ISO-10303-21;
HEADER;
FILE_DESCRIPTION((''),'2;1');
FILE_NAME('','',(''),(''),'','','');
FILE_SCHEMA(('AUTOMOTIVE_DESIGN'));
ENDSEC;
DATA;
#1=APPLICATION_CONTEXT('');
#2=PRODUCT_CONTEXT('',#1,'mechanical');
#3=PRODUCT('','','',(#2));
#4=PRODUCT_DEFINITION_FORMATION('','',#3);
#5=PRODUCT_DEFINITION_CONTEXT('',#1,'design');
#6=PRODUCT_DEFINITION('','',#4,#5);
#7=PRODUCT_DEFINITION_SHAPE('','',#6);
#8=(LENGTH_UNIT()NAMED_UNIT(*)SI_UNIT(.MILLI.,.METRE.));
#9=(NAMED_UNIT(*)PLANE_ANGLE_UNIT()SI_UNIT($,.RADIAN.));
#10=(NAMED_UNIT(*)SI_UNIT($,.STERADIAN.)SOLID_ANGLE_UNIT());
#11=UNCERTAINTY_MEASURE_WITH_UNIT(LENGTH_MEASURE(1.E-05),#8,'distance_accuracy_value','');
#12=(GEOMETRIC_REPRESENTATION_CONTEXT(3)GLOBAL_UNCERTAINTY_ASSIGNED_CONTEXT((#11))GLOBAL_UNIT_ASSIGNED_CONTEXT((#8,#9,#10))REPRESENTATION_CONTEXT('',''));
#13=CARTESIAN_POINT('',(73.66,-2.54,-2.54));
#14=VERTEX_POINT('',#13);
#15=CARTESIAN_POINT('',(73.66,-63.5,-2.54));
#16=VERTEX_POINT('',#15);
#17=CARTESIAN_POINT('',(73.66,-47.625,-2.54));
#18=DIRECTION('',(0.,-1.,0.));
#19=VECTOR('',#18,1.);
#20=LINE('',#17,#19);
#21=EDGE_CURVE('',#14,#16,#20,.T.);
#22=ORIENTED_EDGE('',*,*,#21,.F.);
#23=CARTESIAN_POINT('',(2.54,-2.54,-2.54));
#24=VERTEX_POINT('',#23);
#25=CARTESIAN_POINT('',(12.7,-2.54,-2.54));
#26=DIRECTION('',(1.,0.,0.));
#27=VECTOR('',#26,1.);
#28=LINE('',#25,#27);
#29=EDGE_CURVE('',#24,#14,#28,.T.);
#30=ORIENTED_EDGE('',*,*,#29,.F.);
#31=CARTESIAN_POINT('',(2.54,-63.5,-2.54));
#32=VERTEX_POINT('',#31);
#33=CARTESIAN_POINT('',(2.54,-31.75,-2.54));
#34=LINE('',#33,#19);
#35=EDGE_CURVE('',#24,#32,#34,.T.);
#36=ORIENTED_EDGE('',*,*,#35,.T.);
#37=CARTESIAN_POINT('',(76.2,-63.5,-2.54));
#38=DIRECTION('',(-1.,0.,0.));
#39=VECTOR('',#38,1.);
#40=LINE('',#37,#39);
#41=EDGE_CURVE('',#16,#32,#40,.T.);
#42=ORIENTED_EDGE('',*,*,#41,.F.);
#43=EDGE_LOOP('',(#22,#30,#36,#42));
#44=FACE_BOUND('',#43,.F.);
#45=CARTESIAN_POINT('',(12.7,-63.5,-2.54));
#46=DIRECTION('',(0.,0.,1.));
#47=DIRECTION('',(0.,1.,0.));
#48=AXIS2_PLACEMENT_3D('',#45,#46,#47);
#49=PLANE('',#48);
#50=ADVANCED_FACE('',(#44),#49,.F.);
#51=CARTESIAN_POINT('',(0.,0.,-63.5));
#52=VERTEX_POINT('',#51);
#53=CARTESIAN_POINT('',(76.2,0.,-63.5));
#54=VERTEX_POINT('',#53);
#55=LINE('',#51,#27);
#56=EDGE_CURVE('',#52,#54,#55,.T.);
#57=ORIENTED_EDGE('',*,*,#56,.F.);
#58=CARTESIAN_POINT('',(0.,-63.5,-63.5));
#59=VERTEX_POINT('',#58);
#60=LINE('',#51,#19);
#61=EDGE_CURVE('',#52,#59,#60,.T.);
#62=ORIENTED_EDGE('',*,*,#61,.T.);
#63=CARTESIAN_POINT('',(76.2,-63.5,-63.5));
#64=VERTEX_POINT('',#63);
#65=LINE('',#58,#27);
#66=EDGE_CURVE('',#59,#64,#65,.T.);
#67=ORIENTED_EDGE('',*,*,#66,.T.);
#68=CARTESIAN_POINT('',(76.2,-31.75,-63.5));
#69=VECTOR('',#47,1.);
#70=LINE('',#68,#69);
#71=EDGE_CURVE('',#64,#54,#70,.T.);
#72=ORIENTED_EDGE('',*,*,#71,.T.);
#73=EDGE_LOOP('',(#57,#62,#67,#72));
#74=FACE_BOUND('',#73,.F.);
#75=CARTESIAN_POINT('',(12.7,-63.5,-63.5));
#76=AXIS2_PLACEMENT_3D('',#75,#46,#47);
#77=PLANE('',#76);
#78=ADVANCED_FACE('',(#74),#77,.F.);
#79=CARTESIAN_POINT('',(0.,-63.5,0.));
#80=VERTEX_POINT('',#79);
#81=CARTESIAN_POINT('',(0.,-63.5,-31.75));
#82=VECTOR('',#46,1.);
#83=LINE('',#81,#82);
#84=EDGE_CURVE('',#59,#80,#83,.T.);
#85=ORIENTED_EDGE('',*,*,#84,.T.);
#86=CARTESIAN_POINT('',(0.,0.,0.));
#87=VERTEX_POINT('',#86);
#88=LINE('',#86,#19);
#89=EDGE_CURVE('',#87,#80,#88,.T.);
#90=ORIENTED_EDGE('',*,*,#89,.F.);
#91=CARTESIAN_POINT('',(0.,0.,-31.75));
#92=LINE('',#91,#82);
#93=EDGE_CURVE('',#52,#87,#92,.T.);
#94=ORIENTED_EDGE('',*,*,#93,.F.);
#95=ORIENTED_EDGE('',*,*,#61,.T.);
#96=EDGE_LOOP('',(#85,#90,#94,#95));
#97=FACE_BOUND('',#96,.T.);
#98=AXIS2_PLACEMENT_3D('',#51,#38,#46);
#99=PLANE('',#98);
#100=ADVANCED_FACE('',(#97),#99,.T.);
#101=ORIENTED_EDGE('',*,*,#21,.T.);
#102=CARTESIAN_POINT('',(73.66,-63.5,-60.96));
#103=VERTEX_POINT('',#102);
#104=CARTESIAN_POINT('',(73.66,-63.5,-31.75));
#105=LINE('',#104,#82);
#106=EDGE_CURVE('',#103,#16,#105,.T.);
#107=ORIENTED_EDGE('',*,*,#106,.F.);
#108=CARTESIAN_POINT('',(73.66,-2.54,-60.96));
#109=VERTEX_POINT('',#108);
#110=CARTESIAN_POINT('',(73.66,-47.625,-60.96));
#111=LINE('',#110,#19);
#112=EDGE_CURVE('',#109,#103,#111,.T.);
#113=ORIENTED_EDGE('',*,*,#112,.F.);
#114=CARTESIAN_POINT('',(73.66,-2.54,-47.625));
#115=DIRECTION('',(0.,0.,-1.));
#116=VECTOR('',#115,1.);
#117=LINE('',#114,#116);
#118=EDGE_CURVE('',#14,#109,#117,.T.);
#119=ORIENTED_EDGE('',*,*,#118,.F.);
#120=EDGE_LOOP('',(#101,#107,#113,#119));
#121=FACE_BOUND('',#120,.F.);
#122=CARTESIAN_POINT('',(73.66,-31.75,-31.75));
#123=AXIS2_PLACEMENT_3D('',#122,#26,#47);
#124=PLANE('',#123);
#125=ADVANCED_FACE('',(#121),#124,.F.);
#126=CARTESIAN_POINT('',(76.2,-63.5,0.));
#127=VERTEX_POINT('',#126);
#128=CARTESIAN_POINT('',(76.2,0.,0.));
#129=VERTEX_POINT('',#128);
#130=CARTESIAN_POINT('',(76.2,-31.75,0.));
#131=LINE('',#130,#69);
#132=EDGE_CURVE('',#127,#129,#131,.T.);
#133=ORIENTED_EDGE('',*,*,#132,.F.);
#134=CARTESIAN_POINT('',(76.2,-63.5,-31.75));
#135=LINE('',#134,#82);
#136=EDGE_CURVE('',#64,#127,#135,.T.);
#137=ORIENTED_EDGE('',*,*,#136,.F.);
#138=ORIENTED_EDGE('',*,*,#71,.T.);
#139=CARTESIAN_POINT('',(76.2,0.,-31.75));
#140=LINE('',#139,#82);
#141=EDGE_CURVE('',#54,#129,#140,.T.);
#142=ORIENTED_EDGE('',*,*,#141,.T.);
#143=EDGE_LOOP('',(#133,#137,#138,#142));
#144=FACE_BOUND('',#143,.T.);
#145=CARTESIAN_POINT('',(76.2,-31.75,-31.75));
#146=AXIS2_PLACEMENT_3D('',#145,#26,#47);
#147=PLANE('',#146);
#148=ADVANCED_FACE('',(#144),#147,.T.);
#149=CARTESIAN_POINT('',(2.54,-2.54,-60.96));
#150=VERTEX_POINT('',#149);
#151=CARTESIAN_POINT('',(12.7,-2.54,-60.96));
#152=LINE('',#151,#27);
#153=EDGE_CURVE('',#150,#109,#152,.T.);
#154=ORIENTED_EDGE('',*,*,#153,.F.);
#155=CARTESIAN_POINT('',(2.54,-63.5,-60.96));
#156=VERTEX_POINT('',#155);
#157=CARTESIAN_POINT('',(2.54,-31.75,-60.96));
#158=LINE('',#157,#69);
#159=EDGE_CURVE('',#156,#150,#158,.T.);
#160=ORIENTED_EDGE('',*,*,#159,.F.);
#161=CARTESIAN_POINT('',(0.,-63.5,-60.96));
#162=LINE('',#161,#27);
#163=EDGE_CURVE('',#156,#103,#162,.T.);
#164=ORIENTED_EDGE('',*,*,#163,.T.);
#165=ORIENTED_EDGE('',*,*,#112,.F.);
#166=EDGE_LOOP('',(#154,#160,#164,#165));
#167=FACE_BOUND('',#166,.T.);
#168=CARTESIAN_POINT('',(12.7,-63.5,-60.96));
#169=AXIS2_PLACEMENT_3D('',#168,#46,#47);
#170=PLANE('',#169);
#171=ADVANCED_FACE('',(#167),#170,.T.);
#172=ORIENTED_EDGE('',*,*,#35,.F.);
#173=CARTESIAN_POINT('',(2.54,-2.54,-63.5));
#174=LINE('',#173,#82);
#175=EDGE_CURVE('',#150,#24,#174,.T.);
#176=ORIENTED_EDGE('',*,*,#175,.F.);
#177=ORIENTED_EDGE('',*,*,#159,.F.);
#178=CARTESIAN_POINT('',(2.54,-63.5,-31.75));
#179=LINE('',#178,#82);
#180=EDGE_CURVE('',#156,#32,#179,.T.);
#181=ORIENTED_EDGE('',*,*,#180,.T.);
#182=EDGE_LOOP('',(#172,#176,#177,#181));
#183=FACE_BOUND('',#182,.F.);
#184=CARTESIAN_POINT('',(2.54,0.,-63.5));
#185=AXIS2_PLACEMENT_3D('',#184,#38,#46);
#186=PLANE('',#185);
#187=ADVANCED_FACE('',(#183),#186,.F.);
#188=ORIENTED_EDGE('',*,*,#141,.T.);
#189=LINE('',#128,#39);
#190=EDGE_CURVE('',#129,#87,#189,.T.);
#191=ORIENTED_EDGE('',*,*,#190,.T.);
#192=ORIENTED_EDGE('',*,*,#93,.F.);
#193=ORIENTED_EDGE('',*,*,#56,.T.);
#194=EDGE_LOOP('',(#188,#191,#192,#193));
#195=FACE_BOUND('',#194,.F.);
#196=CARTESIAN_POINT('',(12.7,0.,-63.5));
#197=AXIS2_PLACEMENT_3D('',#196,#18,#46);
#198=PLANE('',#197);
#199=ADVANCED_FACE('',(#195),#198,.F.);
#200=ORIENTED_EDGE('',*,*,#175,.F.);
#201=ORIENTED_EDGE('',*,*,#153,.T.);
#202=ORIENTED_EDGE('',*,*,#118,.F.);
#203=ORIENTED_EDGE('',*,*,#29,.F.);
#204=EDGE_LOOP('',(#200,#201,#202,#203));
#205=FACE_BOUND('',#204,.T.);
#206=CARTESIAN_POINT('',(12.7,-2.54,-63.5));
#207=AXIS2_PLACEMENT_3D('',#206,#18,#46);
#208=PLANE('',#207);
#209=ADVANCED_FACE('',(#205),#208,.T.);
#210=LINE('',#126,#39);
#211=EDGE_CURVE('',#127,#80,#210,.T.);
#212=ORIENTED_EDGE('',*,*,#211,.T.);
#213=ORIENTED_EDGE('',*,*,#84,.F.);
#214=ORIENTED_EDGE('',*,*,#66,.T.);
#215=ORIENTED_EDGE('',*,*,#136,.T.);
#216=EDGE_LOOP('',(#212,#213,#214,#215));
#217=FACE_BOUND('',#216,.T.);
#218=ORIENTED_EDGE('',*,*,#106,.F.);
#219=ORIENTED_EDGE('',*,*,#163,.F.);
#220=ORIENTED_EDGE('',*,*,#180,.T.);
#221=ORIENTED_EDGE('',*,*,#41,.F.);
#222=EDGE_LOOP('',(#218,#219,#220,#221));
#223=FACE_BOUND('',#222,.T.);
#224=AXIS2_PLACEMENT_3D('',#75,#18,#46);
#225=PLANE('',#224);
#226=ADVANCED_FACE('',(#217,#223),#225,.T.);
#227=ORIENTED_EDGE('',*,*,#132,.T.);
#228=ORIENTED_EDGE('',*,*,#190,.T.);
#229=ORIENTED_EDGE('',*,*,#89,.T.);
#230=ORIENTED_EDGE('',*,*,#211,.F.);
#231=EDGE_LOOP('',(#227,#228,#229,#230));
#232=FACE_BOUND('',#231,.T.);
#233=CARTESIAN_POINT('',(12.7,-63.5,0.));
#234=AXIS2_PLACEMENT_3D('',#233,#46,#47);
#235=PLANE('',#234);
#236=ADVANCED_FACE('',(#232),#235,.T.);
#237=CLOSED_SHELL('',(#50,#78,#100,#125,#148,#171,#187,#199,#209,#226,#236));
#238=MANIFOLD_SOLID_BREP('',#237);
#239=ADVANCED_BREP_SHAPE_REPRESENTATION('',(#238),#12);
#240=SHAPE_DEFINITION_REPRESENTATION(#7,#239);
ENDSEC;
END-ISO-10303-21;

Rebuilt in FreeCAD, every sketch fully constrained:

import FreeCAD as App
import Part
import Sketcher
from FreeCAD import Vector
Q = App.Units.Quantity


def faces_at(feature, points):
    """Names of the faces that lie closest to the given points."""
    faces = feature.Shape.Faces
    near = lambda p: min(range(len(faces)), key=lambda i: faces[i].distToShape(Part.Vertex(*p))[0])
    return sorted({f"Face{near(p) + 1}" for p in points})


def add_polygon(sketch, points):
    """Adds a closed chain of lines whose ends are joined by coincident constraints."""
    first, n = sketch.GeometryCount, len(points)
    for a, b in zip(points, points[1:] + points[:1]):
        sketch.addGeometry(Part.LineSegment(App.Vector(*a, 0), App.Vector(*b, 0)), False)
    for i in range(n):
        sketch.addConstraint(Sketcher.Constraint("Coincident", first + i, 2, first + (i + 1) % n, 1))

doc = App.newDocument("Part")
body = doc.addObject("PartDesign::Body", "Body")

sketch1 = body.newObject("Sketcher::SketchObject", "Sketch")
sketch1.AttachmentSupport = (doc.getObject("XZ_Plane"), [""])
sketch1.MapMode = "FlatFace"
add_polygon(sketch1, [(0, 0), (0, -63.5), (12.7, -63.5), (12.7, 0)])
sketch1.addConstraint([
    Sketcher.Constraint("Vertical", 0),
    Sketcher.Constraint("Horizontal", 1),
    Sketcher.Constraint("Vertical", 2),
    Sketcher.Constraint("Horizontal", 3),
    Sketcher.Constraint("Coincident", 3, 2, -1, 1),
    Sketcher.Constraint("DistanceX", 1, 1, 1, 2, Q("0.5 in")),
    Sketcher.Constraint("DistanceY", 0, 2, 0, 1, Q("2.5 in")),
])
pad1 = body.newObject("PartDesign::Pad", "Pad")
pad1.Profile = sketch1
pad1.Length = Q("2.5 in")

sketch2 = body.newObject("Sketcher::SketchObject", "Sketch001")
sketch2.AttachmentSupport = (doc.getObject("YZ_Plane"), [""])
sketch2.MapMode = "FlatFace"
sketch2.AttachmentOffset = App.Placement(Vector(0, 0, 0.5 * 25.4), App.Rotation())
add_polygon(sketch2, [(-63.5, 0), (-63.5, -63.5), (0, -63.5), (0, 0)])
sketch2.addConstraint([
    Sketcher.Constraint("Vertical", 0),
    Sketcher.Constraint("Horizontal", 1),
    Sketcher.Constraint("Vertical", 2),
    Sketcher.Constraint("Horizontal", 3),
    Sketcher.Constraint("Coincident", 2, 2, -1, 1),
    Sketcher.Constraint("Equal", 3, 0),
    Sketcher.Constraint("DistanceX", 1, 1, 1, 2, Q("2.5 in")),
])
pad2 = body.newObject("PartDesign::Pad", "Pad001")
pad2.Profile = sketch2
pad2.Length = Q("2.5 in")
doc.recompute()

thickness = body.newObject("PartDesign::Thickness", "Thickness")
thickness.Base = (pad2, faces_at(pad2, [(38.1, -63.5, -31.75)]))
thickness.Value = Q("0.1 in")
thickness.Reversed = True
thickness.Join = "Arc"

doc.recompute()
